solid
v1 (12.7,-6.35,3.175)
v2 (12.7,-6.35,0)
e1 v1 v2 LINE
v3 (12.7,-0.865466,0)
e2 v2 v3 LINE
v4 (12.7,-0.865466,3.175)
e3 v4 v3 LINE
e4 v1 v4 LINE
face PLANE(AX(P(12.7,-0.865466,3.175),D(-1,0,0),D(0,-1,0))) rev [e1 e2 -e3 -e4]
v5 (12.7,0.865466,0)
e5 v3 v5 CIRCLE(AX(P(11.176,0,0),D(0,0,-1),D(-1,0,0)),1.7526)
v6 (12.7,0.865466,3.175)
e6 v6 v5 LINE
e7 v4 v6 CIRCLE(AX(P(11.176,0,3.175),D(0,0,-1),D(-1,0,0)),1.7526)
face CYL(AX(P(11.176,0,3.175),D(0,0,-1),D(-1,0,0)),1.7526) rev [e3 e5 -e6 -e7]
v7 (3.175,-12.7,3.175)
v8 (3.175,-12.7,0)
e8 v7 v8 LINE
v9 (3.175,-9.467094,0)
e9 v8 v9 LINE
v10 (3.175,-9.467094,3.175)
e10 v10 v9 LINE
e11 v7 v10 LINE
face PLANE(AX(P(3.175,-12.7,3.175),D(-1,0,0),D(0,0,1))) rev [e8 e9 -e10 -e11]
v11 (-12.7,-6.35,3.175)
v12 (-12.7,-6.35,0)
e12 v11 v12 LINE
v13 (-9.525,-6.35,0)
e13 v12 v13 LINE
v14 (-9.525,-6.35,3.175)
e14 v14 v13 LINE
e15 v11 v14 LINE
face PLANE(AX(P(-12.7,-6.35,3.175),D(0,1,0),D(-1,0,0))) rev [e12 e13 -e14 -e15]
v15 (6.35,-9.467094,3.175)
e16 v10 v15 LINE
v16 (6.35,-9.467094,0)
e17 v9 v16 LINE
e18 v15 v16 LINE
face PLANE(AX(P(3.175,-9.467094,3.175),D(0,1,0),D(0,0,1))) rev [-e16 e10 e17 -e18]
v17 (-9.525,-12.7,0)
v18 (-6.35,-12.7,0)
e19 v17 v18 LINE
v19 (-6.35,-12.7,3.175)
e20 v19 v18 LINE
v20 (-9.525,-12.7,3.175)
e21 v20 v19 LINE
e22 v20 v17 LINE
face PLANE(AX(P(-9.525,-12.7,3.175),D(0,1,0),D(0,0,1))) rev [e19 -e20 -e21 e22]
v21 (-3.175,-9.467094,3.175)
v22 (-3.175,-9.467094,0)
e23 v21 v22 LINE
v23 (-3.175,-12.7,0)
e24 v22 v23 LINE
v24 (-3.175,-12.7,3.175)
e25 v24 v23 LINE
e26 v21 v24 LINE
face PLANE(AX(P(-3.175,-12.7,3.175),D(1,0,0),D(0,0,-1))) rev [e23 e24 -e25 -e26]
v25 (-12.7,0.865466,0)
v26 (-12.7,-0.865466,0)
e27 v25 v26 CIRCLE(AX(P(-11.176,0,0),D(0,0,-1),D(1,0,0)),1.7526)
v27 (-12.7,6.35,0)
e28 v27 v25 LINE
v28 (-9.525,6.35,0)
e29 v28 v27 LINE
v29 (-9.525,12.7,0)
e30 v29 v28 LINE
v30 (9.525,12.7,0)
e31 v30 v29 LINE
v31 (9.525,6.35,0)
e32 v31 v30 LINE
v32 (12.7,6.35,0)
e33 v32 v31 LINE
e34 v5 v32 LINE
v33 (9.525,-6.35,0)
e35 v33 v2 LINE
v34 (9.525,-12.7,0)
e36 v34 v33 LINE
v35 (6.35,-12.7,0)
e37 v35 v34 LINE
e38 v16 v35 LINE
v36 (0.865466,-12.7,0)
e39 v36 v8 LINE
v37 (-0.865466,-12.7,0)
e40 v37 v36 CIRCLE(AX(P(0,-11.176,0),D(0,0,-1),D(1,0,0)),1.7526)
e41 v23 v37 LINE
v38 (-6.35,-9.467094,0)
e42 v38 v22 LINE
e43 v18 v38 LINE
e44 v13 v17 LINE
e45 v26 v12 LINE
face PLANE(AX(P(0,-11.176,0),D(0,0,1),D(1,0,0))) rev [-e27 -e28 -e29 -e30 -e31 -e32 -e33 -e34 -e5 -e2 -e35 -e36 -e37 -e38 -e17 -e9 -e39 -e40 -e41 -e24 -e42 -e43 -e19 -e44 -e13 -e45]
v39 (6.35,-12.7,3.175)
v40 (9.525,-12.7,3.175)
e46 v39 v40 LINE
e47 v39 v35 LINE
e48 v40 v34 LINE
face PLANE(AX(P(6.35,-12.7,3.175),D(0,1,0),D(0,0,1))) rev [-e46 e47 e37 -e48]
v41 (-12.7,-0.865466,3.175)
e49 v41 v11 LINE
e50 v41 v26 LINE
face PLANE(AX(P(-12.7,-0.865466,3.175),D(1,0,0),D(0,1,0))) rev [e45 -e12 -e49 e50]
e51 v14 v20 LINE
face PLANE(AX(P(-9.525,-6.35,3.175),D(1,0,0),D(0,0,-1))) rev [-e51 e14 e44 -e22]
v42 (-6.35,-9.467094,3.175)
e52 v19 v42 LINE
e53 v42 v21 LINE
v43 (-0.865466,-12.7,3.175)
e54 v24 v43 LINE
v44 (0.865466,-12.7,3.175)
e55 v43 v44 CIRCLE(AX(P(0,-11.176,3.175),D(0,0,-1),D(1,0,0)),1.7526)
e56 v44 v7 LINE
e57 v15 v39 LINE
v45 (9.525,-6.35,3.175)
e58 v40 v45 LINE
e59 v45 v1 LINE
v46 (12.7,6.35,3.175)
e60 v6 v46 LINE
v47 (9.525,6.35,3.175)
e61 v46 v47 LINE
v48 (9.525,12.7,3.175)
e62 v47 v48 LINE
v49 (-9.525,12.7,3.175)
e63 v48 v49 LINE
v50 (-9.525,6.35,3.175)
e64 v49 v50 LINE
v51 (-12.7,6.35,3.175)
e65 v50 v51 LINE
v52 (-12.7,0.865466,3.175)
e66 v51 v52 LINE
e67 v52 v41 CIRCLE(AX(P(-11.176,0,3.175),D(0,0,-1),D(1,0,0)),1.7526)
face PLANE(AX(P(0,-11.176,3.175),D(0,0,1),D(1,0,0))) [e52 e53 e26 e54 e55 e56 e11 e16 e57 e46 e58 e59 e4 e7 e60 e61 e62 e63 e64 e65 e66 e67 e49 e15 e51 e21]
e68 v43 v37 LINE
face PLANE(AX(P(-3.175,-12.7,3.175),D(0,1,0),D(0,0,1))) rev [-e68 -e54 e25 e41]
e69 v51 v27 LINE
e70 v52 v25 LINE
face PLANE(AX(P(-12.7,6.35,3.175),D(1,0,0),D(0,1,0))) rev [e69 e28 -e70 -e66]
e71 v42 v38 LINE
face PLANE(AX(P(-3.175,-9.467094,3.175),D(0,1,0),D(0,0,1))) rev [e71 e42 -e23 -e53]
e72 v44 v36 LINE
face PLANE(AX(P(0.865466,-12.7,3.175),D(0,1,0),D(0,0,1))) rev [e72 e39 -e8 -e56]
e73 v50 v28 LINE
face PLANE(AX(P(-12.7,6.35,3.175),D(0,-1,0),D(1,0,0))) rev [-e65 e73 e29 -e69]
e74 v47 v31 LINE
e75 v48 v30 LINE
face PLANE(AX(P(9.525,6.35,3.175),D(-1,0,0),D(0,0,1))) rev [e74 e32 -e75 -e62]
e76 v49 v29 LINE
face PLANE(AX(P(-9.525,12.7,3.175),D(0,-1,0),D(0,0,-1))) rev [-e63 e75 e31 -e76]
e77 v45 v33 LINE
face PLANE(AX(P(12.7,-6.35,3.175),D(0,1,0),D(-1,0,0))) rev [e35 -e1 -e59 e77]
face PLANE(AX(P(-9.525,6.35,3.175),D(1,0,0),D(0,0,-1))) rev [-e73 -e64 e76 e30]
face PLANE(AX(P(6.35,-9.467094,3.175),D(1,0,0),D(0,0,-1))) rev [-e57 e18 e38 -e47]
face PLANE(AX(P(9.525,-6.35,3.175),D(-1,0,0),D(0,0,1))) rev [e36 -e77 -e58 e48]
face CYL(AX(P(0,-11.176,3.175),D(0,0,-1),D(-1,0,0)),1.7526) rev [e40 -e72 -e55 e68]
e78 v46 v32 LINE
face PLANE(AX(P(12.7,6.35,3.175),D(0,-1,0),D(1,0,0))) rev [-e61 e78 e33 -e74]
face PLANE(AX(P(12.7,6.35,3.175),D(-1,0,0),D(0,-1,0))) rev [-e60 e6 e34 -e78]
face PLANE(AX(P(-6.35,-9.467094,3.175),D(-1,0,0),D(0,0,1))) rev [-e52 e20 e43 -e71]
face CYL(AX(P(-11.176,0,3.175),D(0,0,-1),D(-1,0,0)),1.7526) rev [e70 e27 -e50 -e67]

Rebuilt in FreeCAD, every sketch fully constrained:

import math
import FreeCAD as App
import Part
import Sketcher
Q = App.Units.Quantity

doc = App.newDocument("Part")
body = doc.addObject("PartDesign::Body", "Body")

# Sketch on XY plane
sketch1 = doc.addObject("Sketcher::SketchObject", "Sketch")
body.addObject(sketch1)
sketch1.AttachmentSupport = (doc.XY_Plane, [""])
sketch1.MapMode = "FlatFace"
sketch1.addGeometry(Part.LineSegment(App.Vector(9.5, 12.7, 0), App.Vector(-9.5, 12.7, 0)), False)
sketch1.addGeometry(Part.LineSegment(App.Vector(-9.5, 12.7, 0), App.Vector(-9.5, 6.3, 0)), False)
sketch1.addGeometry(Part.LineSegment(App.Vector(-9.5, 6.3, 0), App.Vector(-12.7, 6.3, 0)), False)
sketch1.addGeometry(Part.LineSegment(App.Vector(-12.7, 6.3, 0), App.Vector(-12.7, 0.9, 0)), False)
sketch1.addGeometry(Part.ArcOfCircle(Part.Circle(App.Vector(-11.2, 0, 0), App.Vector(0, 0, 1), 1.8), math.radians(-150), math.radians(150)), False)
sketch1.addGeometry(Part.LineSegment(App.Vector(-12.7, -0.9, 0), App.Vector(-12.7, -6.3, 0)), False)
sketch1.addGeometry(Part.LineSegment(App.Vector(-12.7, -6.3, 0), App.Vector(-9.5, -6.3, 0)), False)
sketch1.addGeometry(Part.LineSegment(App.Vector(-9.5, -6.3, 0), App.Vector(-9.5, -12.7, 0)), False)
sketch1.addGeometry(Part.LineSegment(App.Vector(-9.5, -12.7, 0), App.Vector(-6.3, -12.7, 0)), False)
sketch1.addGeometry(Part.LineSegment(App.Vector(-6.3, -12.7, 0), App.Vector(-6.3, -9.5, 0)), False)
sketch1.addGeometry(Part.LineSegment(App.Vector(-6.3, -9.5, 0), App.Vector(-3.2, -9.5, 0)), False)
sketch1.addGeometry(Part.LineSegment(App.Vector(-3.2, -9.5, 0), App.Vector(-3.2, -12.7, 0)), False)
sketch1.addGeometry(Part.LineSegment(App.Vector(-3.2, -12.7, 0), App.Vector(-0.9, -12.7, 0)), False)
sketch1.addGeometry(Part.ArcOfCircle(Part.Circle(App.Vector(0, -11.2, 0), App.Vector(0, 0, 1), 1.8), math.radians(-60), math.radians(240)), False)
sketch1.addGeometry(Part.LineSegment(App.Vector(0.9, -12.7, 0), App.Vector(3.2, -12.7, 0)), False)
sketch1.addGeometry(Part.LineSegment(App.Vector(3.2, -12.7, 0), App.Vector(3.2, -9.5, 0)), False)
sketch1.addGeometry(Part.LineSegment(App.Vector(3.2, -9.5, 0), App.Vector(6.3, -9.5, 0)), False)
sketch1.addGeometry(Part.LineSegment(App.Vector(6.3, -9.5, 0), App.Vector(6.3, -12.7, 0)), False)
sketch1.addGeometry(Part.LineSegment(App.Vector(6.3, -12.7, 0), App.Vector(9.5, -12.7, 0)), False)
sketch1.addGeometry(Part.LineSegment(App.Vector(9.5, -12.7, 0), App.Vector(9.5, -6.3, 0)), False)
sketch1.addGeometry(Part.LineSegment(App.Vector(9.5, -6.3, 0), App.Vector(12.7, -6.3, 0)), False)
sketch1.addGeometry(Part.LineSegment(App.Vector(12.7, -6.3, 0), App.Vector(12.7, -0.9, 0)), False)
sketch1.addGeometry(Part.ArcOfCircle(Part.Circle(App.Vector(11.2, 0, 0), App.Vector(0, 0, 1), 1.8), math.radians(30), math.radians(330)), False)
sketch1.addGeometry(Part.LineSegment(App.Vector(12.7, 0.9, 0), App.Vector(12.7, 6.3, 0)), False)
sketch1.addGeometry(Part.LineSegment(App.Vector(12.7, 6.3, 0), App.Vector(9.5, 6.3, 0)), False)
sketch1.addGeometry(Part.LineSegment(App.Vector(9.5, 6.3, 0), App.Vector(9.5, 12.7, 0)), False)
sketch1.addConstraint(Sketcher.Constraint("Coincident", 0, 2, 1, 1))
sketch1.addConstraint(Sketcher.Constraint("Coincident", 1, 2, 2, 1))
sketch1.addConstraint(Sketcher.Constraint("Coincident", 2, 2, 3, 1))
sketch1.addConstraint(Sketcher.Constraint("Coincident", 3, 2, 4, 2))
sketch1.addConstraint(Sketcher.Constraint("Coincident", 4, 1, 5, 1))
sketch1.addConstraint(Sketcher.Constraint("Coincident", 5, 2, 6, 1))
sketch1.addConstraint(Sketcher.Constraint("Coincident", 6, 2, 7, 1))
sketch1.addConstraint(Sketcher.Constraint("Coincident", 7, 2, 8, 1))
sketch1.addConstraint(Sketcher.Constraint("Coincident", 8, 2, 9, 1))
sketch1.addConstraint(Sketcher.Constraint("Coincident", 9, 2, 10, 1))
sketch1.addConstraint(Sketcher.Constraint("Coincident", 10, 2, 11, 1))
sketch1.addConstraint(Sketcher.Constraint("Coincident", 11, 2, 12, 1))
sketch1.addConstraint(Sketcher.Constraint("Coincident", 12, 2, 13, 2))
sketch1.addConstraint(Sketcher.Constraint("Coincident", 13, 1, 14, 1))
sketch1.addConstraint(Sketcher.Constraint("Coincident", 14, 2, 15, 1))
sketch1.addConstraint(Sketcher.Constraint("Coincident", 15, 2, 16, 1))
sketch1.addConstraint(Sketcher.Constraint("Coincident", 16, 2, 17, 1))
sketch1.addConstraint(Sketcher.Constraint("Coincident", 17, 2, 18, 1))
sketch1.addConstraint(Sketcher.Constraint("Coincident", 18, 2, 19, 1))
sketch1.addConstraint(Sketcher.Constraint("Coincident", 19, 2, 20, 1))
sketch1.addConstraint(Sketcher.Constraint("Coincident", 20, 2, 21, 1))
sketch1.addConstraint(Sketcher.Constraint("Coincident", 21, 2, 22, 2))
sketch1.addConstraint(Sketcher.Constraint("Coincident", 22, 1, 23, 1))
sketch1.addConstraint(Sketcher.Constraint("Coincident", 23, 2, 24, 1))
sketch1.addConstraint(Sketcher.Constraint("Coincident", 24, 2, 25, 1))
sketch1.addConstraint(Sketcher.Constraint("Coincident", 25, 2, 0, 1))
sketch1.addConstraint(Sketcher.Constraint("Horizontal", 0))
sketch1.addConstraint(Sketcher.Constraint("Vertical", 1))
sketch1.addConstraint(Sketcher.Constraint("Horizontal", 2))
sketch1.addConstraint(Sketcher.Constraint("Vertical", 3))
sketch1.addConstraint(Sketcher.Constraint("Vertical", 5))
sketch1.addConstraint(Sketcher.Constraint("Horizontal", 6))
sketch1.addConstraint(Sketcher.Constraint("Vertical", 7))
sketch1.addConstraint(Sketcher.Constraint("Horizontal", 8))
sketch1.addConstraint(Sketcher.Constraint("Vertical", 9))
sketch1.addConstraint(Sketcher.Constraint("Horizontal", 10))
sketch1.addConstraint(Sketcher.Constraint("Vertical", 11))
sketch1.addConstraint(Sketcher.Constraint("Horizontal", 12))
sketch1.addConstraint(Sketcher.Constraint("Horizontal", 14))
sketch1.addConstraint(Sketcher.Constraint("Vertical", 15))
sketch1.addConstraint(Sketcher.Constraint("Horizontal", 16))
sketch1.addConstraint(Sketcher.Constraint("Vertical", 17))
sketch1.addConstraint(Sketcher.Constraint("Horizontal", 18))
sketch1.addConstraint(Sketcher.Constraint("Vertical", 19))
sketch1.addConstraint(Sketcher.Constraint("Horizontal", 20))
sketch1.addConstraint(Sketcher.Constraint("Vertical", 21))
sketch1.addConstraint(Sketcher.Constraint("Vertical", 23))
sketch1.addConstraint(Sketcher.Constraint("Horizontal", 24))
sketch1.addConstraint(Sketcher.Constraint("Vertical", 25))
sketch1.addConstraint(Sketcher.Constraint("Equal", 4, 13))
sketch1.addConstraint(Sketcher.Constraint("Equal", 13, 22))
sketch1.addConstraint(Sketcher.Constraint("Symmetric", 4, 3, 22, 3, -1, 1))
sketch1.addConstraint(Sketcher.Constraint("Symmetric", 0, 2, 18, 2, -1, 1))
sketch1.addConstraint(Sketcher.Constraint("Symmetric", 2, 2, 20, 2, -1, 1))
sketch1.addConstraint(Sketcher.Constraint("Symmetric", 5, 2, 23, 2, -1, 1))
sketch1.addConstraint(Sketcher.Constraint("Symmetric", 7, 2, 25, 2, -1, 1))
sketch1.addConstraint(Sketcher.Constraint("Symmetric", 12, 2, 13, 1, -2))
sketch1.addConstraint(Sketcher.Constraint("Symmetric", 10, 2, 15, 2, -2))
sketch1.addConstraint(Sketcher.Constraint("Symmetric", 6, 2, 19, 2, -2))
sketch1.addConstraint(Sketcher.Constraint("Symmetric", 4, 1, 21, 2, -2))
sketch1.addConstraint(Sketcher.Constraint("Horizontal", 8, 2, 11, 2))
sketch1.addConstraint(Sketcher.Constraint("Equal", 6, 8))
sketch1.addConstraint(Sketcher.Constraint("Equal", 8, 10))
sketch1.addConstraint(Sketcher.Constraint("Equal", 10, 16))
sketch1.addConstraint(Sketcher.Constraint("Radius", 4, Q("0.069 in")))
sketch1.addConstraint(Sketcher.Constraint("DistanceX", 0, 2, 0, 1, Q("0.75 in")))
sketch1.addConstraint(Sketcher.Constraint("DistanceY", 1, 2, 1, 1, Q("0.25 in")))
sketch1.addConstraint(Sketcher.Constraint("DistanceY", -1, 1, 0, 2, Q("0.5 in")))
sketch1.addConstraint(Sketcher.Constraint("DistanceX", 2, 2, -1, 1, Q("0.5 in")))
sketch1.addConstraint(Sketcher.Constraint("DistanceX", 4, 3, -1, 1, Q("0.44 in")))
sketch1.addConstraint(Sketcher.Constraint("DistanceY", 13, 3, -1, 1, Q("0.44 in")))
sketch1.addConstraint(Sketcher.Constraint("DistanceY", 9, 1, 9, 2, 3.232906))
pad1 = doc.addObject("PartDesign::Pad", "Pad")
body.addObject(pad1)
pad1.Profile = sketch1
pad1.Length = Q("0.125 in")

doc.recompute()
